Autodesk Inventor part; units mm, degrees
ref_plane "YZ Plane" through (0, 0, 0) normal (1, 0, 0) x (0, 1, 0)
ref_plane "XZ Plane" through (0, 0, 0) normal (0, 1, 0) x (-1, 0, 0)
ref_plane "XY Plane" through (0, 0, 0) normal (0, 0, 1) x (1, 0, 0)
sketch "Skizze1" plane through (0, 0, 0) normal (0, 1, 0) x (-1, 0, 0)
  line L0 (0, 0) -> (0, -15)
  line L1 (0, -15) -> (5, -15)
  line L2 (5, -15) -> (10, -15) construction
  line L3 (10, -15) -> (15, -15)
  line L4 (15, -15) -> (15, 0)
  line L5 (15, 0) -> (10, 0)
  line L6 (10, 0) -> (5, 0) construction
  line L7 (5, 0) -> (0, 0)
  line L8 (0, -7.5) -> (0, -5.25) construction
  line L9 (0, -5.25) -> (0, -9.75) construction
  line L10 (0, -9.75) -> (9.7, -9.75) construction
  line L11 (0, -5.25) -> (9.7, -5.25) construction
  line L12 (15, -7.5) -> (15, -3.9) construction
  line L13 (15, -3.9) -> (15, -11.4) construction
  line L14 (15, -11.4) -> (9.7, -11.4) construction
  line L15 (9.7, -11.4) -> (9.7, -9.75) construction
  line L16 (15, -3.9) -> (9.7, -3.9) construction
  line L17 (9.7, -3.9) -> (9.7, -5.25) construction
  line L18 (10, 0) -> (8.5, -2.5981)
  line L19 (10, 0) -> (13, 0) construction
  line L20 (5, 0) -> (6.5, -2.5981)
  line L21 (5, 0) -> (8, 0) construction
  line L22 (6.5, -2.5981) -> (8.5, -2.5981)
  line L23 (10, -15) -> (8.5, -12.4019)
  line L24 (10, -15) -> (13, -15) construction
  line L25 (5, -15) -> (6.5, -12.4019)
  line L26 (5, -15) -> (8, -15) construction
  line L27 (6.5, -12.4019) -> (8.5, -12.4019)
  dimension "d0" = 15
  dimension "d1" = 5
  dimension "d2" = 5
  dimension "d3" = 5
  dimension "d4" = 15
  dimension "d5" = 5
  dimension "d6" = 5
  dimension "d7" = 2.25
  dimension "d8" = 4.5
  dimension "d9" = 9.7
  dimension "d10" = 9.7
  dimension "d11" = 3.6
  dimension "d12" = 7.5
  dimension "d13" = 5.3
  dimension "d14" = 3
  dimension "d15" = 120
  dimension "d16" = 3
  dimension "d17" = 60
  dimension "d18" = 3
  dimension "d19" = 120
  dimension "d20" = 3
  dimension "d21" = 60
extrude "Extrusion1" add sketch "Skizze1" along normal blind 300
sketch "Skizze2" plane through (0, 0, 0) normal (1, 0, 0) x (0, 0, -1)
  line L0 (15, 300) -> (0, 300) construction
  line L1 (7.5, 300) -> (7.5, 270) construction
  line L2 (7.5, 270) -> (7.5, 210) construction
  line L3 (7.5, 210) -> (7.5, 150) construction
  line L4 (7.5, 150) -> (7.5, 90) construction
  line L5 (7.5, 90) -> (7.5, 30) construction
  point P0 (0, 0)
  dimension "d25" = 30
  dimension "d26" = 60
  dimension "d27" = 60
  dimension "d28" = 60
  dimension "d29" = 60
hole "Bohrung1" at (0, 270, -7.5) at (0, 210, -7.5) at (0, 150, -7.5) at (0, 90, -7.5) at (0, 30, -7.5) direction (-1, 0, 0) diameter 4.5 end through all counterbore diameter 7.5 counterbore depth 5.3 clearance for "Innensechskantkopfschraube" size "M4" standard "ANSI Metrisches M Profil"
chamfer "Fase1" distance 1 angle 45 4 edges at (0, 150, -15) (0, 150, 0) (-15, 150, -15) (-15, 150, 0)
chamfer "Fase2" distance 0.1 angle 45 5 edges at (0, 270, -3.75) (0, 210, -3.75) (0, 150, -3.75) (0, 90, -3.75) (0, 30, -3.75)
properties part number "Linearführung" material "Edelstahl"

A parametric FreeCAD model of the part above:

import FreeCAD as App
import Part
import Sketcher

V = App.Vector
Q = App.Units.Quantity


def edges_at(feature, points):
    """Names of the edges that pass closest to the given points."""
    edges = feature.Shape.Edges
    near = lambda p: min(range(len(edges)), key=lambda i: edges[i].distToShape(Part.Vertex(*p))[0])
    return sorted({f"Edge{near(p) + 1}" for p in points})

doc = App.newDocument("Part")
body = doc.addObject("PartDesign::Body", "Body")

sketch1 = body.newObject("Sketcher::SketchObject", "Sketch")
sketch1.AttachmentSupport = (doc.getObject("XZ_Plane"), [""])
sketch1.MapMode = "FlatFace"
sketch1.addGeometry([
    Part.LineSegment(V(-5, 0, 0), V(0, 0, 0)),
    Part.LineSegment(V(0, 0, 0), V(0, -15, 0)),
    Part.LineSegment(V(0, -15, 0), V(-5, -15, 0)),
    Part.LineSegment(V(-5, -15, 0), V(-6.5, -12.4, 0)),
    Part.LineSegment(V(-6.5, -12.4, 0), V(-8.5, -12.4, 0)),
    Part.LineSegment(V(-8.5, -12.4, 0), V(-10, -15, 0)),
    Part.LineSegment(V(-10, -15, 0), V(-15, -15, 0)),
    Part.LineSegment(V(-15, -15, 0), V(-15, 0, 0)),
    Part.LineSegment(V(-15, 0, 0), V(-10, 0, 0)),
    Part.LineSegment(V(-10, 0, 0), V(-8.5, -2.6, 0)),
    Part.LineSegment(V(-8.5, -2.6, 0), V(-6.5, -2.6, 0)),
    Part.LineSegment(V(-6.5, -2.6, 0), V(-5, 0, 0)),
], False)
sketch1.addConstraint([
    Sketcher.Constraint("Coincident", 0, 2, 1, 1),
    Sketcher.Constraint("Coincident", 1, 2, 2, 1),
    Sketcher.Constraint("Coincident", 2, 2, 3, 1),
    Sketcher.Constraint("Coincident", 3, 2, 4, 1),
    Sketcher.Constraint("Coincident", 4, 2, 5, 1),
    Sketcher.Constraint("Coincident", 5, 2, 6, 1),
    Sketcher.Constraint("Coincident", 6, 2, 7, 1),
    Sketcher.Constraint("Coincident", 7, 2, 8, 1),
    Sketcher.Constraint("Coincident", 8, 2, 9, 1),
    Sketcher.Constraint("Coincident", 9, 2, 10, 1),
    Sketcher.Constraint("Coincident", 10, 2, 11, 1),
    Sketcher.Constraint("Coincident", 11, 2, 0, 1),
    Sketcher.Constraint("Horizontal", 0),
    Sketcher.Constraint("Vertical", 1),
    Sketcher.Constraint("Horizontal", 2),
    Sketcher.Constraint("Horizontal", 4),
    Sketcher.Constraint("Horizontal", 6),
    Sketcher.Constraint("Vertical", 7),
    Sketcher.Constraint("Horizontal", 8),
    Sketcher.Constraint("Horizontal", 10),
    Sketcher.Constraint("Coincident", 0, 2, -1, 1),
    Sketcher.Constraint("PointOnObject", 7, 2, -1),
    Sketcher.Constraint("Parallel", 3, 9),
    Sketcher.Constraint("Parallel", 5, 11),
    Sketcher.Constraint("Horizontal", 2, 2, 5, 2),
    Sketcher.Constraint("Vertical", 5, 2, 8, 2),
    Sketcher.Constraint("Vertical", 4, 2, 9, 2),
    Sketcher.Constraint("Vertical", 3, 2, 10, 2),
    Sketcher.Constraint("Vertical", 2, 2, 11, 2),
    Sketcher.Constraint("Equal", 2, 6),
    Sketcher.Constraint("DistanceX", 0, 1, 0, 2, 5.0),
    Sketcher.Constraint("DistanceY", 1, 2, 1, 1, 15.0),
    Sketcher.Constraint("Angle", 3, Q("119.9998 deg")),
    Sketcher.Constraint("Distance", 3, 3.0),
    Sketcher.Constraint("DistanceX", 6, 2, -1, 1, 15.0),
])
pad1 = body.newObject("PartDesign::Pad", "Pad")
pad1.Profile = sketch1
pad1.Length = 300
pad1.Reversed = True

sketch2 = body.newObject("Sketcher::SketchObject", "Sketch001")
sketch2.AttachmentSupport = (doc.getObject("YZ_Plane"), [""])
sketch2.MapMode = "FlatFace"
sketch2.addGeometry([
    Part.Circle(V(270, -7.5, 0), V(0, 0, 1), 2.2),
    Part.Circle(V(210, -7.5, 0), V(0, 0, 1), 2.2),
    Part.Circle(V(150, -7.5, 0), V(0, 0, 1), 2.2),
    Part.Circle(V(90, -7.5, 0), V(0, 0, 1), 2.2),
    Part.Circle(V(30, -7.5, 0), V(0, 0, 1), 2.2),
], False)
sketch2.addConstraint([
    Sketcher.Constraint("Equal", 0, 1),
    Sketcher.Constraint("Equal", 1, 2),
    Sketcher.Constraint("Equal", 2, 3),
    Sketcher.Constraint("Equal", 3, 4),
    Sketcher.Constraint("Horizontal", 0, 3, 1, 3),
    Sketcher.Constraint("Horizontal", 1, 3, 2, 3),
    Sketcher.Constraint("Horizontal", 2, 3, 3, 3),
    Sketcher.Constraint("Horizontal", 3, 3, 4, 3),
    Sketcher.Constraint("Diameter", 0, 4.5),
    Sketcher.Constraint("DistanceX", -1, 1, 0, 3, 270.0),
    Sketcher.Constraint("DistanceX", -1, 1, 1, 3, 210.0),
    Sketcher.Constraint("DistanceX", -1, 1, 2, 3, 150.0),
    Sketcher.Constraint("DistanceX", -1, 1, 3, 3, 90.0),
    Sketcher.Constraint("DistanceX", -1, 1, 4, 3, 30.0),
    Sketcher.Constraint("DistanceY", 0, 3, -1, 1, 7.5),
])
doc.recompute()
hole = body.newObject("PartDesign::Hole", "Hole")
hole.Profile = sketch2
hole.ThreadType = "None"
hole.Diameter = 4.5
hole.DepthType = "ThroughAll"
hole.HoleCutType = "Counterbore"
hole.HoleCutDiameter = 7.5
hole.HoleCutDepth = 5.3
doc.recompute()

chamfer = body.newObject("PartDesign::Chamfer", "Chamfer")
chamfer.Base = (hole, edges_at(hole, [
    (0, 150, -15),
    (0, 150, 0),
    (-15, 150, -15),
    (-15, 150, 0),
]))
chamfer.Size = 1
doc.recompute()

chamfer2 = body.newObject("PartDesign::Chamfer", "Chamfer001")
chamfer2.Base = (chamfer, edges_at(chamfer, [
    (0, 270, -3.75),
    (0, 210, -3.75),
    (0, 150, -3.75),
    (0, 90, -3.75),
    (0, 30, -3.75),
]))
chamfer2.Size = 0.1

doc.recompute()
